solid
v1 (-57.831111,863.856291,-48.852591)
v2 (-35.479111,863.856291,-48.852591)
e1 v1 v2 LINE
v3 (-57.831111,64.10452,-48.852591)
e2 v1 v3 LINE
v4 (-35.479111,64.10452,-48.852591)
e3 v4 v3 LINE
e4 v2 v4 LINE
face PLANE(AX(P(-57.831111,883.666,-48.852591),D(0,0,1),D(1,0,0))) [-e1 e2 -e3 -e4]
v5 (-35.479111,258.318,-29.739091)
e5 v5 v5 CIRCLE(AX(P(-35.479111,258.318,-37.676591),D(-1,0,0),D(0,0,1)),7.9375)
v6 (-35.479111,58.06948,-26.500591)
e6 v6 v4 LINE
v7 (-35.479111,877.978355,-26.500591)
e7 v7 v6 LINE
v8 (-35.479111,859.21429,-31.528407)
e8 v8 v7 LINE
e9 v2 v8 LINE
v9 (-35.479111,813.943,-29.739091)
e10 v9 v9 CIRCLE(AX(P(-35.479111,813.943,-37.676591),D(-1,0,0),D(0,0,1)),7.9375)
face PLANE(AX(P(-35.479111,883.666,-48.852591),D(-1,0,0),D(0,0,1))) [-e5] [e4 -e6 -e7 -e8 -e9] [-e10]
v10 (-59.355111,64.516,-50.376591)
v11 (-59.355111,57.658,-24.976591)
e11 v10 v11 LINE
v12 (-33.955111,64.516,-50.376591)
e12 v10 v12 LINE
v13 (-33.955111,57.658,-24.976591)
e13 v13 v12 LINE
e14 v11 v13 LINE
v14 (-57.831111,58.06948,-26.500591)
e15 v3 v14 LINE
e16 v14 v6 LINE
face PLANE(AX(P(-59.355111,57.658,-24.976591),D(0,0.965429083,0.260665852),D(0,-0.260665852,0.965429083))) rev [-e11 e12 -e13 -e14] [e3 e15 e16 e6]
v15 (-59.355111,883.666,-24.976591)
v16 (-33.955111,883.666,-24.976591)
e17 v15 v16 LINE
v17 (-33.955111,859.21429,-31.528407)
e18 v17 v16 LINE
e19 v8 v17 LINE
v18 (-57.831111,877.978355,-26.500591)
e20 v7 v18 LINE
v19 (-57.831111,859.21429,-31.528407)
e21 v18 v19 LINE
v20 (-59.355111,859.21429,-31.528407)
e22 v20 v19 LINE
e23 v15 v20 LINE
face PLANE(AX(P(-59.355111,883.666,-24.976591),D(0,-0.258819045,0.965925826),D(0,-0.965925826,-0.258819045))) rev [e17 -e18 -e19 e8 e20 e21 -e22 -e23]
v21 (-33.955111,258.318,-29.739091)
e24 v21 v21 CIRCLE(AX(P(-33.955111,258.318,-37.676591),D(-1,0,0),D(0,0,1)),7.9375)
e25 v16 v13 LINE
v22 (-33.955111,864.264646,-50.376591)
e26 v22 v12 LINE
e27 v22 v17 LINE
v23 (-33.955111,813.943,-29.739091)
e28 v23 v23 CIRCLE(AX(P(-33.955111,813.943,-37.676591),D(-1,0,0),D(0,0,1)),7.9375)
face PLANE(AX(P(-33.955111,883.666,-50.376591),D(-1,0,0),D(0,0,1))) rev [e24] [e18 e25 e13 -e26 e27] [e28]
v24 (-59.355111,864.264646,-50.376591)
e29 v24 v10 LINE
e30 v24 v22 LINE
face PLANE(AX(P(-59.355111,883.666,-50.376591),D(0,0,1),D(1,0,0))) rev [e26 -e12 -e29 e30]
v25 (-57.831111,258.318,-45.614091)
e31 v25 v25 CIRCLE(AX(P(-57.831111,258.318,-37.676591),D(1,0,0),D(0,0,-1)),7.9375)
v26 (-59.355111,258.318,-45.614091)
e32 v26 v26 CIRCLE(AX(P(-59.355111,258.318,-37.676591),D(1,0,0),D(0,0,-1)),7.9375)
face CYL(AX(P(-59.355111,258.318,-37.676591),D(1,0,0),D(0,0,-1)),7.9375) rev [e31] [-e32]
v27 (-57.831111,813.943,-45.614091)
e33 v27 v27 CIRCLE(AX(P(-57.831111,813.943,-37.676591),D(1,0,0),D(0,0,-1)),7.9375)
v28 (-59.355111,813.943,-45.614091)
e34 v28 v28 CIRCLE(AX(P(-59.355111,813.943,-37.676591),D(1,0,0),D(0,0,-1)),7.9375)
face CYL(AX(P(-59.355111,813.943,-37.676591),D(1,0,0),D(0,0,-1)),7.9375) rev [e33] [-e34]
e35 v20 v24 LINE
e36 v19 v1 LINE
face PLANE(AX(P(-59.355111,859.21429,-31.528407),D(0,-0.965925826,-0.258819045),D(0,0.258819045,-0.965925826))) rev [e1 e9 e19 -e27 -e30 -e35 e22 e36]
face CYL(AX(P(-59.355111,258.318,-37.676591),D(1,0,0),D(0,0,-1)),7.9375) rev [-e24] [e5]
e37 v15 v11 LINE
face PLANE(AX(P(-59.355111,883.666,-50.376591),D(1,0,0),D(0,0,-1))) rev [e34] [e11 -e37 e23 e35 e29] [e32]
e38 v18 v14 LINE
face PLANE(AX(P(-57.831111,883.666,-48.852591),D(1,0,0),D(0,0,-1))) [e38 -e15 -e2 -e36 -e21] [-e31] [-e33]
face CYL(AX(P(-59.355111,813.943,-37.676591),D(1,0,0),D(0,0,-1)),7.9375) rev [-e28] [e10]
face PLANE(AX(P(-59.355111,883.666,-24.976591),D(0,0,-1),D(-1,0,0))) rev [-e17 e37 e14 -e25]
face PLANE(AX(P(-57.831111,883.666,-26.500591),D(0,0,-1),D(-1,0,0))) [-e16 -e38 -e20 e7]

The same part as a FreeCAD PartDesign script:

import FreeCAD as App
import Part
import Sketcher

V = App.Vector
Q = App.Units.Quantity

doc = App.newDocument("Part")
params = doc.addObject("Spreadsheet::Sheet", "Params")
for row, (alias, value) in enumerate([
    ("sketch1_width", "1 in"),
    ("sketch1_width2", "0.88 in"),
    ("pad1_length", "34.79 in"),
    ("sketch2_diameter", "0.625 in"),
    ("sketch3_diameter", "0.625 in"),
    ("sketch4_height", "1 in"),
    ("sketch5_height", "1 in"),
    ("sketch5_width", "2.27 in"),
    ("sketch5_width2", "2.54 in"),
], start=1):
    params.set(f"A{row}", alias)
    params.set(f"B{row}", "=" + value)
    params.setAlias(f"B{row}", alias)

body = doc.addObject("PartDesign::Body", "Body")

# Sketch on XZ plane
sketch1 = body.newObject("Sketcher::SketchObject", "Sketch")
sketch1.AttachmentSupport = (doc.getObject("XZ_Plane"), [""])
sketch1.MapMode = "FlatFace"
sketch1.addGeometry([
    Part.LineSegment(V(-59, -50, 0), V(-59, -25, 0)),  # 0
    Part.LineSegment(V(-59, -25, 0), V(-34, -25, 0)),  # 1
    Part.LineSegment(V(-34, -25, 0), V(-34, -50, 0)),  # 2
    Part.LineSegment(V(-34, -50, 0), V(-59, -50, 0)),  # 3
    Part.LineSegment(V(-35, -27, 0), V(-58, -27, 0)),  # 4
    Part.LineSegment(V(-58, -27, 0), V(-58, -49, 0)),  # 5
    Part.LineSegment(V(-58, -49, 0), V(-35, -49, 0)),  # 6
    Part.LineSegment(V(-35, -49, 0), V(-35, -27, 0)),  # 7
], False)
sketch1.addConstraint([
    Sketcher.Constraint("Coincident", 0, 2, 1, 1),
    Sketcher.Constraint("Coincident", 1, 2, 2, 1),
    Sketcher.Constraint("Coincident", 2, 2, 3, 1),
    Sketcher.Constraint("Coincident", 3, 2, 0, 1),
    Sketcher.Constraint("Coincident", 4, 2, 5, 1),
    Sketcher.Constraint("Coincident", 5, 2, 6, 1),
    Sketcher.Constraint("Coincident", 6, 2, 7, 1),
    Sketcher.Constraint("Coincident", 7, 2, 4, 1),
    Sketcher.Constraint("Vertical", 0),
    Sketcher.Constraint("Horizontal", 1),
    Sketcher.Constraint("Vertical", 2),
    Sketcher.Constraint("Horizontal", 3),
    Sketcher.Constraint("Horizontal", 4),
    Sketcher.Constraint("Vertical", 5),
    Sketcher.Constraint("Horizontal", 6),
    Sketcher.Constraint("Vertical", 7),
    Sketcher.Constraint("Equal", 3, 0),
    Sketcher.Constraint("Equal", 6, 5),
    Sketcher.Constraint("DistanceX", 1, 1, 1, 2, Q("1 in")),
    Sketcher.Constraint("DistanceX", 4, 2, 4, 1, Q("0.88 in")),
    Sketcher.Constraint("DistanceX", 0, 2, 4, 2, Q("0.06 in")),
    Sketcher.Constraint("DistanceY", 4, 2, 0, 2, Q("0.06 in")),
    Sketcher.Constraint("DistanceX", 0, 2, -1, 1, Q("59.355111 mm")),
    Sketcher.Constraint("DistanceY", 0, 2, -1, 1, Q("24.976591 mm")),
])
sketch1.setExpression("Constraints[18]", "Params.sketch1_width")
sketch1.setExpression("Constraints[19]", "Params.sketch1_width2")
pad1 = body.newObject("PartDesign::Pad", "Pad")
pad1.Profile = sketch1
pad1.setExpression("Length", "Params.pad1_length")
pad1.Reversed = True

# Sketch on YZ plane
sketch2 = body.newObject("Sketcher::SketchObject", "Sketch001")
sketch2.AttachmentSupport = (doc.getObject("YZ_Plane"), [""])
sketch2.MapMode = "FlatFace"
sketch2.AttachmentOffset = App.Placement(V(0, 0, -33.955111), App.Rotation())
sketch2.addGeometry(Part.Circle(V(258, -38, 0), V(0, 0, 1), 8), False)
sketch2.addConstraint([
    Sketcher.Constraint("Diameter", 0, Q("0.625 in")),
    Sketcher.Constraint("DistanceX", -1, 1, 0, 3, Q("10.17 in")),
    Sketcher.Constraint("DistanceY", 0, 3, -1, 1, Q("37.676591 mm")),
])
sketch2.setExpression("Constraints[0]", "Params.sketch2_diameter")
pocket1 = body.newObject("PartDesign::Pocket", "Pocket")
pocket1.Profile = sketch2
pocket1.Type = "ThroughAll"
pocket1.Midplane = True

# Sketch on YZ plane
sketch3 = body.newObject("Sketcher::SketchObject", "Sketch002")
sketch3.AttachmentSupport = (doc.getObject("YZ_Plane"), [""])
sketch3.MapMode = "FlatFace"
sketch3.AttachmentOffset = App.Placement(V(0, 0, -33.955111), App.Rotation())
sketch3.addGeometry(Part.Circle(V(814, -38, 0), V(0, 0, 1), 8), False)
sketch3.addConstraint([
    Sketcher.Constraint("Diameter", 0, Q("0.625 in")),
    Sketcher.Constraint("DistanceX", -1, 1, 0, 3, Q("32.045 in")),
    Sketcher.Constraint("DistanceY", 0, 3, -1, 1, Q("37.676591 mm")),
])
sketch3.setExpression("Constraints[0]", "Params.sketch3_diameter")
pocket2 = body.newObject("PartDesign::Pocket", "Pocket001")
pocket2.Profile = sketch3
pocket2.Type = "ThroughAll"
pocket2.Midplane = True

# Sketch on YZ plane
sketch4 = body.newObject("Sketcher::SketchObject", "Sketch003")
sketch4.AttachmentSupport = (doc.getObject("YZ_Plane"), [""])
sketch4.MapMode = "FlatFace"
sketch4.AttachmentOffset = App.Placement(V(0, 0, -33.955111), App.Rotation())
sketch4.addGeometry([
    Part.LineSegment(V(884, -25, 0), V(859, -32, 0)),
    Part.LineSegment(V(859, -32, 0), V(864, -50, 0)),
    Part.LineSegment(V(864, -50, 0), V(884, -50, 0)),
    Part.LineSegment(V(884, -50, 0), V(884, -25, 0)),
], False)
sketch4.addConstraint([
    Sketcher.Constraint("Coincident", 0, 2, 1, 1),
    Sketcher.Constraint("Coincident", 1, 2, 2, 1),
    Sketcher.Constraint("Coincident", 2, 2, 3, 1),
    Sketcher.Constraint("Coincident", 3, 2, 0, 1),
    Sketcher.Constraint("Horizontal", 2),
    Sketcher.Constraint("Vertical", 3),
    Sketcher.Constraint("Perpendicular", 0, 1),
    Sketcher.Constraint("DistanceY", 3, 1, 3, 2, Q("1 in")),
    Sketcher.Constraint("Angle", 0, Q("-165 deg")),
    Sketcher.Constraint("DistanceX", -1, 1, 2, 2, Q("34.79 in")),
    Sketcher.Constraint("DistanceX", 2, 1, 2, 2, Q("19.401354 mm")),
    Sketcher.Constraint("DistanceY", 1, 2, -1, 1, Q("50.376591 mm")),
])
sketch4.setExpression("Constraints[7]", "Params.sketch4_height")
pocket3 = body.newObject("PartDesign::Pocket", "Pocket002")
pocket3.Profile = sketch4
pocket3.Type = "ThroughAll"
pocket3.Midplane = True

# Sketch on YZ plane
sketch5 = body.newObject("Sketcher::SketchObject", "Sketch004")
sketch5.AttachmentSupport = (doc.getObject("YZ_Plane"), [""])
sketch5.MapMode = "FlatFace"
sketch5.AttachmentOffset = App.Placement(V(0, 0, -33.955111), App.Rotation())
sketch5.addGeometry([
    Part.LineSegment(V(58, -25, 0), V(0, -25, 0)),
    Part.LineSegment(V(0, -25, 0), V(0, -50, 0)),
    Part.LineSegment(V(0, -50, 0), V(65, -50, 0)),
    Part.LineSegment(V(65, -50, 0), V(58, -25, 0)),
], False)
sketch5.addConstraint([
    Sketcher.Constraint("Coincident", 0, 2, 1, 1),
    Sketcher.Constraint("Coincident", 1, 2, 2, 1),
    Sketcher.Constraint("Coincident", 2, 2, 3, 1),
    Sketcher.Constraint("Coincident", 3, 2, 0, 1),
    Sketcher.Constraint("Horizontal", 0),
    Sketcher.Constraint("Vertical", 1),
    Sketcher.Constraint("Horizontal", 2),
    Sketcher.Constraint("PointOnObject", 0, 2, -2),
    Sketcher.Constraint("DistanceY", 1, 2, 1, 1, Q("1 in")),
    Sketcher.Constraint("DistanceX", 0, 2, 0, 1, Q("2.27 in")),
    Sketcher.Constraint("DistanceX", 2, 1, 2, 2, Q("2.54 in")),
    Sketcher.Constraint("DistanceY", 0, 2, -1, 1, Q("24.976591 mm")),
])
sketch5.setExpression("Constraints[8]", "Params.sketch5_height")
sketch5.setExpression("Constraints[9]", "Params.sketch5_width")
sketch5.setExpression("Constraints[10]", "Params.sketch5_width2")
pocket4 = body.newObject("PartDesign::Pocket", "Pocket003")
pocket4.Profile = sketch5
pocket4.Type = "ThroughAll"
pocket4.Midplane = True

doc.recompute()
